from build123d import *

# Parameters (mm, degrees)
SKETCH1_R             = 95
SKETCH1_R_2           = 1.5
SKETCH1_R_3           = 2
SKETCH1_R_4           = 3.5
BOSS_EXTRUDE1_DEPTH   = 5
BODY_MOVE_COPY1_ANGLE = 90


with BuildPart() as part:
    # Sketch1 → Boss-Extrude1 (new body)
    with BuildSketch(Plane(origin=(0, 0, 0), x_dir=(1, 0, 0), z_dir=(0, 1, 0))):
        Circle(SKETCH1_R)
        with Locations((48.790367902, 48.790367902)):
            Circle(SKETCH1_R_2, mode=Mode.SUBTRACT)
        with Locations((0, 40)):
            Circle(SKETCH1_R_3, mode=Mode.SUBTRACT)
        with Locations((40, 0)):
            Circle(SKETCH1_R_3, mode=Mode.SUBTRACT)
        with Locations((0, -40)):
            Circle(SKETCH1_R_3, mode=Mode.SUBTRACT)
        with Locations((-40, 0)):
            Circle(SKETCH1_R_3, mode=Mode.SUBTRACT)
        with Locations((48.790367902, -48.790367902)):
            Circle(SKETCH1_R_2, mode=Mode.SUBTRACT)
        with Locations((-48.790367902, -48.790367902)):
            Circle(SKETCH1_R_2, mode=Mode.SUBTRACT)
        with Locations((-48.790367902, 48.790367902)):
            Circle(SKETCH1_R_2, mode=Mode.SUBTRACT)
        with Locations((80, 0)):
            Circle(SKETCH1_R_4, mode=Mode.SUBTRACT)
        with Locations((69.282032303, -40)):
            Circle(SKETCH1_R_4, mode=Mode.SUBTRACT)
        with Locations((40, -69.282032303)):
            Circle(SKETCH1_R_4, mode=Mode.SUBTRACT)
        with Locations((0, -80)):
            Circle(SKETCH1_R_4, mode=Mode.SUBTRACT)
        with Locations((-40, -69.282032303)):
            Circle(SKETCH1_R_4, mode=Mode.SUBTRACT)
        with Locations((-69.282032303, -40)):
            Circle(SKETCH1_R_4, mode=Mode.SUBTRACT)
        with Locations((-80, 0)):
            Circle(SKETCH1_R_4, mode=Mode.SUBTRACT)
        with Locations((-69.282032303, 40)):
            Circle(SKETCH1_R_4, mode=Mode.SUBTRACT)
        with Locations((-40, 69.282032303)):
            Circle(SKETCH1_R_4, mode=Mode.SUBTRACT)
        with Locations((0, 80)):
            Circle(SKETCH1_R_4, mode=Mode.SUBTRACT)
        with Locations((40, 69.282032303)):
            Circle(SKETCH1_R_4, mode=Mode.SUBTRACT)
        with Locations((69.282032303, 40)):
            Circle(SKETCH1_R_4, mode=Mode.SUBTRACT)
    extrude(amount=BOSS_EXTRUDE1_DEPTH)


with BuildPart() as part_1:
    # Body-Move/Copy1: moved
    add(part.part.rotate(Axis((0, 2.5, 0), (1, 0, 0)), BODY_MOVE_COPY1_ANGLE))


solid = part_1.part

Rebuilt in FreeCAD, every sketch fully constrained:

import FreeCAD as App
import Part
import Sketcher

V = App.Vector
Q = App.Units.Quantity

doc = App.newDocument("Part")
params = doc.addObject("Spreadsheet::Sheet", "Params")
for row, (alias, value) in enumerate([
    ("sketch1_diameter", "190 mm"),
    ("sketch1_diameter2", "3 mm"),
    ("sketch1_diameter3", "7 mm"),
    ("sketch1_diameter4", "4 mm"),
    ("pad1_length", "5 mm"),
], start=1):
    params.set(f"A{row}", alias)
    params.set(f"B{row}", "=" + value)
    params.setAlias(f"B{row}", alias)

body = doc.addObject("PartDesign::Body", "Body")

# Sketch on XZ plane
sketch1 = doc.addObject("Sketcher::SketchObject", "Sketch")
body.addObject(sketch1)
sketch1.AttachmentSupport = (doc.XZ_Plane, [""])
sketch1.MapMode = "FlatFace"
sketch1.addGeometry([
    Part.Circle(V(0, 0, 0), V(0, 0, 1), 95),  # 0
    Part.Circle(V(-48.8, 48.8, 0), V(0, 0, 1), 1.5),  # 1
    Part.Circle(V(-40, 69.3, 0), V(0, 0, 1), 3.5),  # 2
    Part.Circle(V(-69.3, 40, 0), V(0, 0, 1), 3.5),  # 3
    Part.Circle(V(0, 80, 0), V(0, 0, 1), 3.5),  # 4
    Part.Circle(V(40, 69.3, 0), V(0, 0, 1), 3.5),  # 5
    Part.Circle(V(48.8, 48.8, 0), V(0, 0, 1), 1.5),  # 6
    Part.Circle(V(0, 40, 0), V(0, 0, 1), 2),  # 7
    Part.Circle(V(69.3, 40, 0), V(0, 0, 1), 3.5),  # 8
    Part.Circle(V(-80, 0, 0), V(0, 0, 1), 3.5),  # 9
    Part.Circle(V(-69.3, -40, 0), V(0, 0, 1), 3.5),  # 10
    Part.Circle(V(-40, 0, 0), V(0, 0, 1), 2),  # 11
    Part.Circle(V(-48.8, -48.8, 0), V(0, 0, 1), 1.5),  # 12
    Part.Circle(V(-40, -69.3, 0), V(0, 0, 1), 3.5),  # 13
    Part.Circle(V(40, 0, 0), V(0, 0, 1), 2),  # 14
    Part.Circle(V(0, -40, 0), V(0, 0, 1), 2),  # 15
    Part.Circle(V(80, 0, 0), V(0, 0, 1), 3.5),  # 16
    Part.Circle(V(69.3, -40, 0), V(0, 0, 1), 3.5),  # 17
    Part.Circle(V(0, -80, 0), V(0, 0, 1), 3.5),  # 18
    Part.Circle(V(40, -69.3, 0), V(0, 0, 1), 3.5),  # 19
    Part.Circle(V(48.8, -48.8, 0), V(0, 0, 1), 1.5),  # 20
], False)
sketch1.addConstraint([
    Sketcher.Constraint("Coincident", 0, 3, -1, 1),
    Sketcher.Constraint("Equal", 2, 3),
    Sketcher.Constraint("Equal", 3, 4),
    Sketcher.Constraint("Equal", 4, 5),
    Sketcher.Constraint("Equal", 1, 6),
    Sketcher.Constraint("Equal", 5, 8),
    Sketcher.Constraint("Equal", 8, 9),
    Sketcher.Constraint("Equal", 9, 10),
    Sketcher.Constraint("Equal", 7, 11),
    Sketcher.Constraint("Equal", 6, 12),
    Sketcher.Constraint("Equal", 10, 13),
    Sketcher.Constraint("Equal", 11, 14),
    Sketcher.Constraint("Equal", 14, 15),
    Sketcher.Constraint("Equal", 13, 16),
    Sketcher.Constraint("Equal", 16, 17),
    Sketcher.Constraint("Equal", 17, 18),
    Sketcher.Constraint("Equal", 18, 19),
    Sketcher.Constraint("Equal", 12, 20),
    Sketcher.Constraint("Symmetric", 8, 3, 10, 3, -1, 1),
    Sketcher.Constraint("Symmetric", 6, 3, 12, 3, -1, 1),
    Sketcher.Constraint("Symmetric", 5, 3, 13, 3, -1, 1),
    Sketcher.Constraint("Symmetric", 11, 3, 14, 3, -1, 1),
    Sketcher.Constraint("Symmetric", 7, 3, 15, 3, -1, 1),
    Sketcher.Constraint("Symmetric", 9, 3, 16, 3, -1, 1),
    Sketcher.Constraint("Symmetric", 3, 3, 17, 3, -1, 1),
    Sketcher.Constraint("Symmetric", 4, 3, 18, 3, -1, 1),
    Sketcher.Constraint("Symmetric", 2, 3, 19, 3, -1, 1),
    Sketcher.Constraint("Symmetric", 1, 3, 20, 3, -1, 1),
    Sketcher.Constraint("Symmetric", 2, 3, 5, 3, -2),
    Sketcher.Constraint("Symmetric", 1, 3, 6, 3, -2),
    Sketcher.Constraint("Symmetric", 3, 3, 8, 3, -2),
    Sketcher.Constraint("PointOnObject", 4, 3, -2),
    Sketcher.Constraint("PointOnObject", 7, 3, -2),
    Sketcher.Constraint("PointOnObject", 9, 3, -1),
    Sketcher.Constraint("PointOnObject", 11, 3, -1),
    Sketcher.Constraint("Horizontal", 3, 3, 7, 3),
    Sketcher.Constraint("Vertical", 2, 3, 11, 3),
    Sketcher.Constraint("Diameter", 0, Q("190 mm")),
    Sketcher.Constraint("Diameter", 1, Q("3 mm")),
    Sketcher.Constraint("Diameter", 2, Q("7 mm")),
    Sketcher.Constraint("Diameter", 7, Q("4 mm")),
    Sketcher.Constraint("DistanceX", 2, 3, -1, 1, Q("40 mm")),
    Sketcher.Constraint("DistanceY", -1, 1, 3, 3, Q("40 mm")),
    Sketcher.Constraint("DistanceY", -1, 1, 4, 3, Q("80 mm")),
    Sketcher.Constraint("DistanceX", 9, 3, -1, 1, Q("80 mm")),
    Sketcher.Constraint("DistanceX", 1, 3, -1, 1, Q("48.790368 mm")),
    Sketcher.Constraint("DistanceY", -1, 1, 1, 3, Q("48.790368 mm")),
    Sketcher.Constraint("DistanceY", -1, 1, 2, 3, Q("69.282032 mm")),
    Sketcher.Constraint("DistanceX", 3, 3, -1, 1, Q("69.282032 mm")),
])
sketch1.setExpression("Constraints[37]", "Params.sketch1_diameter")
sketch1.setExpression("Constraints[38]", "Params.sketch1_diameter2")
sketch1.setExpression("Constraints[39]", "Params.sketch1_diameter3")
sketch1.setExpression("Constraints[40]", "Params.sketch1_diameter4")
pad1 = doc.addObject("PartDesign::Pad", "Pad")
body.addObject(pad1)
pad1.Profile = sketch1
pad1.setExpression("Length", "Params.pad1_length")
pad1.Reversed = True
body2 = doc.addObject("PartDesign::Body", "Body001")
doc.recompute()

body.Placement = App.Placement(V(0, 2.5, -2.5), App.Rotation(V(1, 0, 0), 90))
boolean = doc.addObject("PartDesign::Boolean", "Boolean")
body2.addObject(boolean)
boolean.Type = "Fuse"
boolean.addObjects([body])

doc.recompute()
